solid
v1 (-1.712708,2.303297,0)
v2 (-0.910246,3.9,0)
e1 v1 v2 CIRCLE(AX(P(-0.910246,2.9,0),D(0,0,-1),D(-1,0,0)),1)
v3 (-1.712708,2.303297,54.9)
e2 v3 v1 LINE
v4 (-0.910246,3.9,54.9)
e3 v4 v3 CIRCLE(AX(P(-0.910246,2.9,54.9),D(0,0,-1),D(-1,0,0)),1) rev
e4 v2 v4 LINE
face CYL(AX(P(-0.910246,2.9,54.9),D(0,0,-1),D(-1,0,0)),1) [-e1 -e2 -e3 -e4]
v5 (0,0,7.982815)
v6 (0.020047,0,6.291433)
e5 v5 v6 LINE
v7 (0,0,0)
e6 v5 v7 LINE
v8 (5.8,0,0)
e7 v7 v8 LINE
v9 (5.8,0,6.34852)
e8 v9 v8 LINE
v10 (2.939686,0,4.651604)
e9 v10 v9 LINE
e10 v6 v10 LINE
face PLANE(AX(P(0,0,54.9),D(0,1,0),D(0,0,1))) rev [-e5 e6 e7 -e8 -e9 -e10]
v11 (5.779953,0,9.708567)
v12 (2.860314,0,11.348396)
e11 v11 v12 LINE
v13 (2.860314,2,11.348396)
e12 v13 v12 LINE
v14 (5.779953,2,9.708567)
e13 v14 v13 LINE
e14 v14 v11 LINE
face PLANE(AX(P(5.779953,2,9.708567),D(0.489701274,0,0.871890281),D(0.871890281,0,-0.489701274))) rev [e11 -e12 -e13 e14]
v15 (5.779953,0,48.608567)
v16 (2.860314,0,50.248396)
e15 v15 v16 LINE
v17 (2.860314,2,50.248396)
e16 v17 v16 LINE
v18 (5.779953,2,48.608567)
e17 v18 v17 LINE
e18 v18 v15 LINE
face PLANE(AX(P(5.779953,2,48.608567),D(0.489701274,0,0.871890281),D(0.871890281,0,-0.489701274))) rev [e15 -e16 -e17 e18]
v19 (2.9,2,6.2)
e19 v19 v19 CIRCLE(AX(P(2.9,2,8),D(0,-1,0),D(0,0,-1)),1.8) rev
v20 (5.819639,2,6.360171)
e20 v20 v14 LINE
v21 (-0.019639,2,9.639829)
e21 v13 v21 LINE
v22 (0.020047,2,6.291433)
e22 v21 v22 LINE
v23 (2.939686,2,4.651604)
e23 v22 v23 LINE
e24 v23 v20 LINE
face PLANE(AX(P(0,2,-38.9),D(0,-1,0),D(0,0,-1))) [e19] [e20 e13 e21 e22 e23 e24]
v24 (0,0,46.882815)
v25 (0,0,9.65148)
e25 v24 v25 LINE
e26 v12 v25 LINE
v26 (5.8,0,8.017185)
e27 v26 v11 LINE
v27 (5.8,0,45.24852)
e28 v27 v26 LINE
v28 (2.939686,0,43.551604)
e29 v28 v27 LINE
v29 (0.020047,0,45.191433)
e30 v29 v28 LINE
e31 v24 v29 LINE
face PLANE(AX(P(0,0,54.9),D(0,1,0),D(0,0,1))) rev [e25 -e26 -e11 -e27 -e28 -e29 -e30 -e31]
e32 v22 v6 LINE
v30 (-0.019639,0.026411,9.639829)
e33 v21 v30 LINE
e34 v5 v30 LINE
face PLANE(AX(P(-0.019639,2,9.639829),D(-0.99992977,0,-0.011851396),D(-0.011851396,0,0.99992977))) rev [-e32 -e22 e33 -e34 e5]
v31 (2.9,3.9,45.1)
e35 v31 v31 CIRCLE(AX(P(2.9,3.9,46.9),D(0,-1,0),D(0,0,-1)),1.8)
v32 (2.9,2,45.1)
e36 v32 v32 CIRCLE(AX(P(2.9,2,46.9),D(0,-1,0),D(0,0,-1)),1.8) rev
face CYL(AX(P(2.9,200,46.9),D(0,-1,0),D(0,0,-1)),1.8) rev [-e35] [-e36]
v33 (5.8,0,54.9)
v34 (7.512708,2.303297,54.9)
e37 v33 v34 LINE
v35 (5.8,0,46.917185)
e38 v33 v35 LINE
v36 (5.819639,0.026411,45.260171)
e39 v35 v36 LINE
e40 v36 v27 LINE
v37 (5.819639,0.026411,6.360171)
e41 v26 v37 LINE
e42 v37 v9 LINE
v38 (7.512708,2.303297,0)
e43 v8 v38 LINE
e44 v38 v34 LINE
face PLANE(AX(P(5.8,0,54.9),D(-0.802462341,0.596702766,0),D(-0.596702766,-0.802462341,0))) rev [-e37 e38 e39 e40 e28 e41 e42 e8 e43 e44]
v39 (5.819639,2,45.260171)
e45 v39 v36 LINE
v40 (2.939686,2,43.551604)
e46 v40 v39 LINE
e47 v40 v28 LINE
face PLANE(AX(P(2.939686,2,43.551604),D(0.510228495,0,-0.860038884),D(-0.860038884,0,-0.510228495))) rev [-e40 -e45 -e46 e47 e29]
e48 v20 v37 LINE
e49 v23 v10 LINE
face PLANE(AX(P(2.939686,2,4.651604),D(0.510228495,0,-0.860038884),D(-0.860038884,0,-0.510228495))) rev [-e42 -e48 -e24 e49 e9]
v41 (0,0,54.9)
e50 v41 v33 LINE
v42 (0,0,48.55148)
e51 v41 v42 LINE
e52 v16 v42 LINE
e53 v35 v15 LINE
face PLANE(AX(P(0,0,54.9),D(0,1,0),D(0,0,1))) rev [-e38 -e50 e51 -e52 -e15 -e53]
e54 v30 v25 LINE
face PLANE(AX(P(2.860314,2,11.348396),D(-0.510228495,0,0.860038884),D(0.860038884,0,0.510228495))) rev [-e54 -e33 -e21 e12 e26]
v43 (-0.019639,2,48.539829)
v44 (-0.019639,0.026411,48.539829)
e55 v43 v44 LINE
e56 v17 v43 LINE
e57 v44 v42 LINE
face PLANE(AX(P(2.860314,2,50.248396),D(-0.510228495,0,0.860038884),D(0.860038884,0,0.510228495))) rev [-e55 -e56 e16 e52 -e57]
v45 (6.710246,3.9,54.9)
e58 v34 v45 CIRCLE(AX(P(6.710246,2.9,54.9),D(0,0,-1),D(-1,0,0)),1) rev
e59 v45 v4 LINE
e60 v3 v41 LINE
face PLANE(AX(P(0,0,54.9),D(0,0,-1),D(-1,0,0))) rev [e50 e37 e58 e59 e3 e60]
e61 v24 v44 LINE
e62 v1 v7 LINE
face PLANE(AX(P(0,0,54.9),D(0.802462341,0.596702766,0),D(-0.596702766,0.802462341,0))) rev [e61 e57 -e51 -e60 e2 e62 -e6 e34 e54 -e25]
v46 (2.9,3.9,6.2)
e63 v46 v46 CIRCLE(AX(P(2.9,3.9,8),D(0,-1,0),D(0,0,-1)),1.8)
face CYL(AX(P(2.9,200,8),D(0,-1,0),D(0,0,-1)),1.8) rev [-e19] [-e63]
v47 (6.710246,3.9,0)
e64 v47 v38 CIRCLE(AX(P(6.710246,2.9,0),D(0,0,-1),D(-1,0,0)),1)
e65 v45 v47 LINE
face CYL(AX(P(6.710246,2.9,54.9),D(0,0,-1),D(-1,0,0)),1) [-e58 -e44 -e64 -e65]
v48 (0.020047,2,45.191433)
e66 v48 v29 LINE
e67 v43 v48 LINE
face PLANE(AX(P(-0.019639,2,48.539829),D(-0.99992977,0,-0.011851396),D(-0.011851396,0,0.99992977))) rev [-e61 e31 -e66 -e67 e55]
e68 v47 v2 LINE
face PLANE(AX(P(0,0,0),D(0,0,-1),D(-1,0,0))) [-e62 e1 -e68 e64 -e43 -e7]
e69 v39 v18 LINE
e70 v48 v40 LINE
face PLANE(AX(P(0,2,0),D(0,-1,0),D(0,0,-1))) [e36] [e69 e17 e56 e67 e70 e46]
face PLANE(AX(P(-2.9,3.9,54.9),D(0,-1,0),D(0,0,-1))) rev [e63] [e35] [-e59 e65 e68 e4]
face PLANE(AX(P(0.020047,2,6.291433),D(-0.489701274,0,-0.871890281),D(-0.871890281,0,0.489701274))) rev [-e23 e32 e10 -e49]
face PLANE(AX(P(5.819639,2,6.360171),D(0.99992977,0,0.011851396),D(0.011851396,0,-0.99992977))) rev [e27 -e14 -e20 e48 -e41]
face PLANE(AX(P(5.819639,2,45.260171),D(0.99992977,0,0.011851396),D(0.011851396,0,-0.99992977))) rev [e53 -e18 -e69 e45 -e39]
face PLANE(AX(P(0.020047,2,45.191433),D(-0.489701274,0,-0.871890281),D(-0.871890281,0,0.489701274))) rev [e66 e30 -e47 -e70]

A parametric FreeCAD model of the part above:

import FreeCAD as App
import Part
import Sketcher

V = App.Vector
Q = App.Units.Quantity


def edges_at(feature, points):
    """Names of the edges that pass closest to the given points."""
    edges = feature.Shape.Edges
    near = lambda p: min(range(len(edges)), key=lambda i: edges[i].distToShape(Part.Vertex(*p))[0])
    return sorted({f"Edge{near(p) + 1}" for p in points})

doc = App.newDocument("Part")
params = doc.addObject("Spreadsheet::Sheet", "Params")
for row, (alias, value) in enumerate([
    ("sketch1_width", "5.8 mm"),
    ("sketch1_width2", "11.6 mm"),
    ("pad1_length", "54.9 mm"),
    ("fillet_radius", "1 mm"),
    ("sketch2_diameter", "3.6 mm"),
    ("pocket1_length", "200 mm"),
    ("pocket2_length", "2 mm"),
    ("linearpattern_pitch", "38.9 mm"),
], start=1):
    params.set(f"A{row}", alias)
    params.set(f"B{row}", "=" + value)
    params.setAlias(f"B{row}", alias)

body = doc.addObject("PartDesign::Body", "Body")

sketch1 = doc.addObject("Sketcher::SketchObject", "Sketch")
body.addObject(sketch1)
sketch1.AttachmentSupport = (doc.XY_Plane, [""])
sketch1.MapMode = "FlatFace"
sketch1.addGeometry(Part.LineSegment(V(0, 0, 0), V(5.8, 0, 0)), False)
sketch1.addGeometry(Part.LineSegment(V(5.8, 0, 0), V(8.7, 3.9, 0)), False)
sketch1.addGeometry(Part.LineSegment(V(8.7, 3.9, 0), V(-2.9, 3.9, 0)), False)
sketch1.addGeometry(Part.LineSegment(V(-2.9, 3.9, 0), V(0, 0, 0)), False)
sketch1.addConstraint(Sketcher.Constraint("Coincident", 0, 2, 1, 1))
sketch1.addConstraint(Sketcher.Constraint("Coincident", 1, 2, 2, 1))
sketch1.addConstraint(Sketcher.Constraint("Coincident", 2, 2, 3, 1))
sketch1.addConstraint(Sketcher.Constraint("Coincident", 3, 2, 0, 1))
sketch1.addConstraint(Sketcher.Constraint("Horizontal", 0))
sketch1.addConstraint(Sketcher.Constraint("Horizontal", 2))
sketch1.addConstraint(Sketcher.Constraint("Coincident", 3, 2, -1, 1))
sketch1.addConstraint(Sketcher.Constraint("Equal", 1, 3))
sketch1.addConstraint(Sketcher.Constraint("DistanceX", 0, 1, 0, 2, Q("5.8 mm")))
sketch1.addConstraint(Sketcher.Constraint("DistanceX", 2, 2, 2, 1, Q("11.6 mm")))
sketch1.addConstraint(Sketcher.Constraint("DistanceY", -1, 1, 1, 2, Q("3.9 mm")))
sketch1.setExpression("Constraints[8]", "Params.sketch1_width")
sketch1.setExpression("Constraints[9]", "Params.sketch1_width2")
pad1 = doc.addObject("PartDesign::Pad", "Pad")
body.addObject(pad1)
pad1.Profile = sketch1
pad1.setExpression("Length", "Params.pad1_length")
doc.recompute()

fillet = doc.addObject("PartDesign::Fillet", "Fillet")
body.addObject(fillet)
fillet.Base = (pad1, edges_at(pad1, [(-2.9, 3.9, 27.45), (8.7, 3.9, 27.45)]))
fillet.setExpression("Radius", "Params.fillet_radius")

sketch2 = doc.addObject("Sketcher::SketchObject", "Sketch001")
body.addObject(sketch2)
sketch2.AttachmentSupport = (doc.XZ_Plane, [""])
sketch2.MapMode = "FlatFace"
sketch2.addGeometry(Part.Circle(V(2.9, 46.9, 0), V(0, 0, 1), 1.8), False)
sketch2.addConstraint(Sketcher.Constraint("Diameter", 0, Q("3.6 mm")))
sketch2.addConstraint(Sketcher.Constraint("DistanceX", -1, 1, 0, 3, Q("2.9 mm")))
sketch2.addConstraint(Sketcher.Constraint("DistanceY", -1, 1, 0, 3, Q("46.9 mm")))
sketch2.setExpression("Constraints[0]", "Params.sketch2_diameter")
pocket1 = doc.addObject("PartDesign::Pocket", "Pocket")
body.addObject(pocket1)
pocket1.Profile = sketch2
pocket1.setExpression("Length", "Params.pocket1_length")

sketch3 = doc.addObject("Sketcher::SketchObject", "Sketch002")
body.addObject(sketch3)
sketch3.AttachmentSupport = (doc.XZ_Plane, [""])
sketch3.MapMode = "FlatFace"
sketch3.addGeometry(Part.LineSegment(V(2.9, 43.6, 0), V(5.8, 45.3, 0)), False)
sketch3.addGeometry(Part.LineSegment(V(5.8, 45.3, 0), V(5.8, 48.6, 0)), False)
sketch3.addGeometry(Part.LineSegment(V(5.8, 48.6, 0), V(2.9, 50.2, 0)), False)
sketch3.addGeometry(Part.LineSegment(V(2.9, 50.2, 0), V(0, 48.5, 0)), False)
sketch3.addGeometry(Part.LineSegment(V(0, 48.5, 0), V(0, 45.2, 0)), False)
sketch3.addGeometry(Part.LineSegment(V(0, 45.2, 0), V(2.9, 43.6, 0)), False)
sketch3.addConstraint(Sketcher.Constraint("Coincident", 0, 2, 1, 1))
sketch3.addConstraint(Sketcher.Constraint("Coincident", 1, 2, 2, 1))
sketch3.addConstraint(Sketcher.Constraint("Coincident", 2, 2, 3, 1))
sketch3.addConstraint(Sketcher.Constraint("Coincident", 3, 2, 4, 1))
sketch3.addConstraint(Sketcher.Constraint("Coincident", 4, 2, 5, 1))
sketch3.addConstraint(Sketcher.Constraint("Coincident", 5, 2, 0, 1))
sketch3.addConstraint(Sketcher.Constraint("Parallel", 0, 3))
sketch3.addConstraint(Sketcher.Constraint("Parallel", 1, 4))
sketch3.addConstraint(Sketcher.Constraint("Parallel", 2, 5))
sketch3.addConstraint(Sketcher.Constraint("Equal", 0, 1))
sketch3.addConstraint(Sketcher.Constraint("Equal", 1, 2))
sketch3.addConstraint(Sketcher.Constraint("Equal", 2, 3))
sketch3.addConstraint(Sketcher.Constraint("Distance", 0, Q("3.348632 mm")))
sketch3.addConstraint(Sketcher.Constraint("DistanceX", -1, 1, 0, 2, Q("5.819639 mm")))
sketch3.addConstraint(Sketcher.Constraint("DistanceY", -1, 1, 0, 2, Q("45.260171 mm")))
sketch3.addConstraint(Sketcher.Constraint("DistanceX", 3, 2, -1, 1, Q("0.019639 mm")))
sketch3.addConstraint(Sketcher.Constraint("DistanceY", -1, 1, 3, 2, Q("48.539829 mm")))
sketch3.addConstraint(Sketcher.Constraint("DistanceX", 2, 2, 1, 2, Q("2.919639 mm")))
pocket2 = doc.addObject("PartDesign::Pocket", "Pocket001")
body.addObject(pocket2)
pocket2.Profile = sketch3
pocket2.setExpression("Length", "Params.pocket2_length")
doc.recompute()

linearpattern = doc.addObject("PartDesign::LinearPattern", "LinearPattern")
body.addObject(linearpattern)
linearpattern.Originals = [pocket1, pocket2]
linearpattern.Direction = (doc.Z_Axis, [""])
linearpattern.Mode = "offset"
linearpattern.setExpression("Offset", "Params.linearpattern_pitch")
linearpattern.Occurrences = 2
linearpattern.Reversed = True
body.Tip = linearpattern

doc.recompute()
